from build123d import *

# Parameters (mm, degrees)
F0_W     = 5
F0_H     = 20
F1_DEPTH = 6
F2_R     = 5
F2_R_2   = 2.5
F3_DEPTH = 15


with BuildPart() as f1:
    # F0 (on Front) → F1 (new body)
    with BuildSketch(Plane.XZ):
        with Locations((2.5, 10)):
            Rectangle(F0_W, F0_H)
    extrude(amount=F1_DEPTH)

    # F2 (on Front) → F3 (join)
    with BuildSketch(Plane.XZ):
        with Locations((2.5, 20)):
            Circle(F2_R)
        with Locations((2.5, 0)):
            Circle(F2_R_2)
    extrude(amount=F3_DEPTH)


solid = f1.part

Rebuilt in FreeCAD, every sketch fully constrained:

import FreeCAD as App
import Part
import Sketcher
Q = App.Units.Quantity


def add_polygon(sketch, points):
    """Adds a closed chain of lines whose ends are joined by coincident constraints."""
    first, n = sketch.GeometryCount, len(points)
    for a, b in zip(points, points[1:] + points[:1]):
        sketch.addGeometry(Part.LineSegment(App.Vector(*a, 0), App.Vector(*b, 0)), False)
    for i in range(n):
        sketch.addConstraint(Sketcher.Constraint("Coincident", first + i, 2, first + (i + 1) % n, 1))

doc = App.newDocument("Part")
body = doc.addObject("PartDesign::Body", "Body")

sketch1 = body.newObject("Sketcher::SketchObject", "Sketch")
sketch1.AttachmentSupport = (doc.getObject("XZ_Plane"), [""])
sketch1.MapMode = "FlatFace"
add_polygon(sketch1, [(0, 20), (0, 0), (5, 0), (5, 20)])
sketch1.addConstraint(Sketcher.Constraint("Vertical", 0))
sketch1.addConstraint(Sketcher.Constraint("Horizontal", 1))
sketch1.addConstraint(Sketcher.Constraint("Vertical", 2))
sketch1.addConstraint(Sketcher.Constraint("Horizontal", 3))
sketch1.addConstraint(Sketcher.Constraint("Coincident", 0, 2, -1, 1))
sketch1.addConstraint(Sketcher.Constraint("DistanceX", 1, 1, 1, 2, Q("5 mm")))
sketch1.addConstraint(Sketcher.Constraint("DistanceY", 0, 2, 0, 1, Q("20 mm")))
pad1 = body.newObject("PartDesign::Pad", "Pad")
pad1.Profile = sketch1
pad1.Length = 6

sketch2 = body.newObject("Sketcher::SketchObject", "Sketch001")
sketch2.AttachmentSupport = (doc.getObject("XZ_Plane"), [""])
sketch2.MapMode = "FlatFace"
sketch2.addGeometry(Part.Circle(App.Vector(2.5, 20, 0), App.Vector(0, 0, 1), 5), False)
sketch2.addGeometry(Part.Circle(App.Vector(2.5, 0, 0), App.Vector(0, 0, 1), 2.5), False)
sketch2.addConstraint(Sketcher.Constraint("PointOnObject", 1, 3, -1))
sketch2.addConstraint(Sketcher.Constraint("Vertical", 0, 3, 1, 3))
sketch2.addConstraint(Sketcher.Constraint("Diameter", 0, Q("10 mm")))
sketch2.addConstraint(Sketcher.Constraint("Diameter", 1, Q("5 mm")))
sketch2.addConstraint(Sketcher.Constraint("DistanceY", -1, 1, 0, 3, Q("20 mm")))
sketch2.addConstraint(Sketcher.Constraint("DistanceX", -1, 1, 0, 3, Q("2.5 mm")))
pad2 = body.newObject("PartDesign::Pad", "Pad001")
pad2.Profile = sketch2
pad2.Length = 15

doc.recompute()
